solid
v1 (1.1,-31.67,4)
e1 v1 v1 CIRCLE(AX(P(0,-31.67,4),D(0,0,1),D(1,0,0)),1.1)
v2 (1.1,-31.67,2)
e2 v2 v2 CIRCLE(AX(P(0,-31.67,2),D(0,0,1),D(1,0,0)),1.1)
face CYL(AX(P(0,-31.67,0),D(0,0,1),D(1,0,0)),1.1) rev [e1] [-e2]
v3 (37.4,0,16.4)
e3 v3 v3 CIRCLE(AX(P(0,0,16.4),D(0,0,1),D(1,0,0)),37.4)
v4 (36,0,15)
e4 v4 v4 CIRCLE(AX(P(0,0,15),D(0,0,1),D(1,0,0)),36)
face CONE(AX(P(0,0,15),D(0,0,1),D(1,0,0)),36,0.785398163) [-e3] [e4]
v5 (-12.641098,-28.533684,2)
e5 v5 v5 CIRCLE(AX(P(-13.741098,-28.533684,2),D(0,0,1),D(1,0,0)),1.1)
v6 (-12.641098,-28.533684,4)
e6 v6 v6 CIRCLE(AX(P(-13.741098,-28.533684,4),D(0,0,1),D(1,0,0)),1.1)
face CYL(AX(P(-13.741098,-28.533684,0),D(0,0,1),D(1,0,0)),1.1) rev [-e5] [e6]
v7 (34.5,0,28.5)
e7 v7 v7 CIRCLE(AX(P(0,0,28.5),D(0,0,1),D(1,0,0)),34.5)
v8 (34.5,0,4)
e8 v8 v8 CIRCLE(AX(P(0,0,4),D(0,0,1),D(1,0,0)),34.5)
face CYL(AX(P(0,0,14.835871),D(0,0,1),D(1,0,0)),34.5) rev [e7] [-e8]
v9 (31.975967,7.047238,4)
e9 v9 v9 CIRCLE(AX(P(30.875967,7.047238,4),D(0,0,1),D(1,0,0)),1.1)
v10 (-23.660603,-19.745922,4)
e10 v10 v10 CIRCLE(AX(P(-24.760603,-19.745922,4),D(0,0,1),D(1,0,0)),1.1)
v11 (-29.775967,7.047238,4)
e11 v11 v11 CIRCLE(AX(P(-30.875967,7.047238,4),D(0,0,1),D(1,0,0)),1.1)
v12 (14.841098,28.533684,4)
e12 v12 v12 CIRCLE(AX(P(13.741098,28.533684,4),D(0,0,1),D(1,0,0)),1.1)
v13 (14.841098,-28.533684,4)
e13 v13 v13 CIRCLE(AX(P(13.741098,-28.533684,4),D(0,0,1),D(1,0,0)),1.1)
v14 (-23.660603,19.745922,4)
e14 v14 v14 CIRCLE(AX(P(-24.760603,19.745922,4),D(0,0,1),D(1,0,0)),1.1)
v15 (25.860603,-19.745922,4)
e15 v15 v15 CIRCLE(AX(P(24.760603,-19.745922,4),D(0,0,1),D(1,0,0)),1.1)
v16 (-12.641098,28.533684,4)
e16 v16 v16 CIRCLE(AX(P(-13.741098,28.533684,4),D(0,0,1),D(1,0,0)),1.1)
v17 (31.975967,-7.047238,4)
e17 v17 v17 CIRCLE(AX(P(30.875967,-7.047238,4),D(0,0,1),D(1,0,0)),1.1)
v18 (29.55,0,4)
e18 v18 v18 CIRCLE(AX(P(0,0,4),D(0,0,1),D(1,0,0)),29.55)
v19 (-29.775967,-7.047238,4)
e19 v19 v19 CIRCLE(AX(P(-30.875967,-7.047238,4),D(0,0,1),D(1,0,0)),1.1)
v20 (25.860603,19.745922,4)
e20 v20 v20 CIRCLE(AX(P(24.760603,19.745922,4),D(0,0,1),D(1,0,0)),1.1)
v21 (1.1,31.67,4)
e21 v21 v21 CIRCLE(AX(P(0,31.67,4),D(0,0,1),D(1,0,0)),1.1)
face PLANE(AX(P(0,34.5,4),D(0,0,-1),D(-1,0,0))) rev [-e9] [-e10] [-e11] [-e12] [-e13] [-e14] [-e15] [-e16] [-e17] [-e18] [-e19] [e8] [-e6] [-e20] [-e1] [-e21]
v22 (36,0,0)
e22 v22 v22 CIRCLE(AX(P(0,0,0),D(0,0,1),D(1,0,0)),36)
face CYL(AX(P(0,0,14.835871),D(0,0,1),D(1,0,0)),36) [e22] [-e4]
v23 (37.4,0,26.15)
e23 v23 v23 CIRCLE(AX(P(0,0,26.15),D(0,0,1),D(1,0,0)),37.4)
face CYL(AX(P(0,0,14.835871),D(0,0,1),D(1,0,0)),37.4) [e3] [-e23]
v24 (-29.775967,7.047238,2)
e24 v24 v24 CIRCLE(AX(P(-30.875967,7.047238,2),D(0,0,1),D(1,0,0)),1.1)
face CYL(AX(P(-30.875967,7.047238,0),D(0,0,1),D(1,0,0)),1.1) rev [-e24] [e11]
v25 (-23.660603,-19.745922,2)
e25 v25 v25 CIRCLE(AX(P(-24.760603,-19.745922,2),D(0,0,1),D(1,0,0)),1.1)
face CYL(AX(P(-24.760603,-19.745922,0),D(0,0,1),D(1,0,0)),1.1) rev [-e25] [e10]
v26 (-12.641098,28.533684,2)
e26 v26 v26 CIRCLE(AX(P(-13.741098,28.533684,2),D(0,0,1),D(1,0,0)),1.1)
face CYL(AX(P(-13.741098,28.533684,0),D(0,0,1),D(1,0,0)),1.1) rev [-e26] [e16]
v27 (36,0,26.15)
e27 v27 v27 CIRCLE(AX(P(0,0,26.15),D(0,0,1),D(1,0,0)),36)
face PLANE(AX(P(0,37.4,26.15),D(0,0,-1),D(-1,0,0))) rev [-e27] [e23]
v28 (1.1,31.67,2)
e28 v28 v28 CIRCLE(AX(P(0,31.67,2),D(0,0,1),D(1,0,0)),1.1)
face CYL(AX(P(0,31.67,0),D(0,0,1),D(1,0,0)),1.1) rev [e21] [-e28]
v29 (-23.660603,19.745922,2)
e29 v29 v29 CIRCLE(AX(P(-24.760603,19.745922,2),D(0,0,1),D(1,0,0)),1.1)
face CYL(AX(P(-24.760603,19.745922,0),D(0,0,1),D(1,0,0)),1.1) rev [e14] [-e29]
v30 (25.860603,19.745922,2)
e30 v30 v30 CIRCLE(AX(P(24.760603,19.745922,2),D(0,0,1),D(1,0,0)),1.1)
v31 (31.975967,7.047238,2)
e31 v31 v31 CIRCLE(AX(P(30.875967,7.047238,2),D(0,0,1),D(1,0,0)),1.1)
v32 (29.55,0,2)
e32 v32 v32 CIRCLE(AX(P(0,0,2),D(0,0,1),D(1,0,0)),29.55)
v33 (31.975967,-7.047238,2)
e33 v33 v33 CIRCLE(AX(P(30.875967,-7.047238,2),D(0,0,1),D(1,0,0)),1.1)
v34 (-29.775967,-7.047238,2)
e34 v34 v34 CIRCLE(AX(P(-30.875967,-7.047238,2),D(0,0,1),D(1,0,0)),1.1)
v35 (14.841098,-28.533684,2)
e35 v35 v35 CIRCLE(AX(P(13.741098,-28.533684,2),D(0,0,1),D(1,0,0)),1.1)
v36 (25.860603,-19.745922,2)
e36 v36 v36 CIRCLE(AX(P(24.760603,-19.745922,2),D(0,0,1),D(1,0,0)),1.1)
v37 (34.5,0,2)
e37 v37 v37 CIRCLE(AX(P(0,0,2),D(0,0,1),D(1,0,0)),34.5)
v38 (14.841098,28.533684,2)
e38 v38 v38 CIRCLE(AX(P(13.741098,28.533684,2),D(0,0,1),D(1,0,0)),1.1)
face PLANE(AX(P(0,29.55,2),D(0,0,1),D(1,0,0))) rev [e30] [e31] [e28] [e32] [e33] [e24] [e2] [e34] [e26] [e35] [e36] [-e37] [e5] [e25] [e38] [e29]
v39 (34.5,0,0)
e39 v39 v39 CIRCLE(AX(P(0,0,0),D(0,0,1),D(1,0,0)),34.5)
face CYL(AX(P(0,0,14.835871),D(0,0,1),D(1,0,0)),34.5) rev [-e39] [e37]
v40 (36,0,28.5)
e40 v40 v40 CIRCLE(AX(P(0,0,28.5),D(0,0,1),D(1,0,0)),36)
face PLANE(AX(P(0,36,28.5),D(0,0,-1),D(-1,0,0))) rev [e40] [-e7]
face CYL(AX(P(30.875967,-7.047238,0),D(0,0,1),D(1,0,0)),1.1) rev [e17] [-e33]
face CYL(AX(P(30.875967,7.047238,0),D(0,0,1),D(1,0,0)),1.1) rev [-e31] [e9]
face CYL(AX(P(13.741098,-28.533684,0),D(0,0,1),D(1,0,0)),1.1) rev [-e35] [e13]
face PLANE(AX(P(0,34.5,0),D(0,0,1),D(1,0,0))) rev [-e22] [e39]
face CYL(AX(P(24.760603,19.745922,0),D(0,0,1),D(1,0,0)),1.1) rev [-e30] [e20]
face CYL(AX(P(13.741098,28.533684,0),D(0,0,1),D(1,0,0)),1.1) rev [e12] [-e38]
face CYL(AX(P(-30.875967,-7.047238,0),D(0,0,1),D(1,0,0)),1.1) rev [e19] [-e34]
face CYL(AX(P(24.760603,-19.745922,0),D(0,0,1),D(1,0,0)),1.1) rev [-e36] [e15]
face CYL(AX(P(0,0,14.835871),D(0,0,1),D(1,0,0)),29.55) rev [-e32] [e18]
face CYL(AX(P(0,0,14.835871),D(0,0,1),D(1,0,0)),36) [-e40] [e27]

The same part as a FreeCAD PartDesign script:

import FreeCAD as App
import Part
import Sketcher
from FreeCAD import Vector
Q = App.Units.Quantity


def add_polygon(sketch, points):
    """Adds a closed chain of lines whose ends are joined by coincident constraints."""
    first, n = sketch.GeometryCount, len(points)
    for a, b in zip(points, points[1:] + points[:1]):
        sketch.addGeometry(Part.LineSegment(App.Vector(*a, 0), App.Vector(*b, 0)), False)
    for i in range(n):
        sketch.addConstraint(Sketcher.Constraint("Coincident", first + i, 2, first + (i + 1) % n, 1))

doc = App.newDocument("Part")
body = doc.addObject("PartDesign::Body", "Body")

# Sketch on YZ plane
sketch1 = body.newObject("Sketcher::SketchObject", "Sketch")
sketch1.AttachmentSupport = (doc.getObject("YZ_Plane"), [""])
sketch1.MapMode = "FlatFace"
add_polygon(sketch1, [(34.5, 0), (36, 0), (36, 15), (37.4, 16.4), (37.4, 26.15), (36, 26.15), (36, 28.5), (34.5, 28.5), (34.5, 4), (29.55, 4), (29.55, 2), (34.5, 2)])  # lines 0-11
sketch1.addConstraint([
    Sketcher.Constraint("Horizontal", 0),
    Sketcher.Constraint("Vertical", 1),
    Sketcher.Constraint("Vertical", 3),
    Sketcher.Constraint("Horizontal", 4),
    Sketcher.Constraint("Vertical", 5),
    Sketcher.Constraint("Horizontal", 6),
    Sketcher.Constraint("Vertical", 7),
    Sketcher.Constraint("Horizontal", 8),
    Sketcher.Constraint("Vertical", 9),
    Sketcher.Constraint("Horizontal", 10),
    Sketcher.Constraint("Vertical", 11),
    Sketcher.Constraint("PointOnObject", 0, 2, -1),
    Sketcher.Constraint("Vertical", 1, 2, 4, 2),
    Sketcher.Constraint("Vertical", 7, 2, 10, 2),
    Sketcher.Constraint("Equal", 9, 11),
    Sketcher.Constraint("DistanceY", 1, 1, 1, 2, 15.0),
    Sketcher.Constraint("DistanceY", 9, 2, 9, 1, 2.0),
    Sketcher.Constraint("Angle", 2, Q("45 deg")),
    Sketcher.Constraint("DistanceX", 0, 1, 0, 2, 1.5),
    Sketcher.Constraint("DistanceX", 4, 2, 4, 1, 1.4),
    Sketcher.Constraint("DistanceY", 7, 2, 7, 1, 24.5),
    Sketcher.Constraint("DistanceX", -1, 1, 0, 2, 36.0),
    Sketcher.Constraint("DistanceX", 8, 2, 8, 1, 4.95),
    Sketcher.Constraint("DistanceY", 3, 1, 3, 2, 9.75),
])
revolution = body.newObject("PartDesign::Revolution", "Revolution")
revolution.Profile = sketch1
revolution.ReferenceAxis = (sketch1, ["V_Axis"])
revolution.Angle = 360

# Sketch on XY plane
sketch2 = body.newObject("Sketcher::SketchObject", "Sketch001")
sketch2.AttachmentSupport = (doc.getObject("XY_Plane"), [""])
sketch2.MapMode = "FlatFace"
sketch2.AttachmentOffset = App.Placement(Vector(0, 0, 4), App.Rotation())
sketch2.addGeometry([
    Part.Circle(Vector(0, 31.67, 0), Vector(0, 0, 1), 1.1),  # 0
    Part.Circle(Vector(13.741098, 28.533684, 0), Vector(0, 0, 1), 1.1),  # 1
    Part.Circle(Vector(24.760603, 19.745922, 0), Vector(0, 0, 1), 1.1),  # 2
    Part.Circle(Vector(30.875967, 7.047238, 0), Vector(0, 0, 1), 1.1),  # 3
    Part.Circle(Vector(30.875967, -7.047238, 0), Vector(0, 0, 1), 1.1),  # 4
    Part.Circle(Vector(24.760603, -19.745922, 0), Vector(0, 0, 1), 1.1),  # 5
    Part.Circle(Vector(13.741098, -28.533684, 0), Vector(0, 0, 1), 1.1),  # 6
    Part.Circle(Vector(0, -31.67, 0), Vector(0, 0, 1), 1.1),  # 7
    Part.Circle(Vector(-13.741098, -28.533684, 0), Vector(0, 0, 1), 1.1),  # 8
    Part.Circle(Vector(-24.760603, -19.745922, 0), Vector(0, 0, 1), 1.1),  # 9
    Part.Circle(Vector(-30.875967, -7.047238, 0), Vector(0, 0, 1), 1.1),  # 10
    Part.Circle(Vector(-30.875967, 7.047238, 0), Vector(0, 0, 1), 1.1),  # 11
    Part.Circle(Vector(-24.760603, 19.745922, 0), Vector(0, 0, 1), 1.1),  # 12
    Part.Circle(Vector(-13.741098, 28.533684, 0), Vector(0, 0, 1), 1.1),  # 13
], False)
sketch2.addConstraint([
    Sketcher.Constraint("Equal", 0, 1),
    Sketcher.Constraint("Equal", 1, 2),
    Sketcher.Constraint("Equal", 2, 3),
    Sketcher.Constraint("Equal", 3, 4),
    Sketcher.Constraint("Equal", 4, 5),
    Sketcher.Constraint("Equal", 5, 6),
    Sketcher.Constraint("Equal", 6, 7),
    Sketcher.Constraint("Equal", 7, 8),
    Sketcher.Constraint("Equal", 8, 9),
    Sketcher.Constraint("Equal", 9, 10),
    Sketcher.Constraint("Equal", 10, 11),
    Sketcher.Constraint("Equal", 11, 12),
    Sketcher.Constraint("Equal", 12, 13),
    Sketcher.Constraint("Symmetric", 0, 3, 7, 3, -1, 1),
    Sketcher.Constraint("Symmetric", 1, 3, 8, 3, -1, 1),
    Sketcher.Constraint("Symmetric", 2, 3, 9, 3, -1, 1),
    Sketcher.Constraint("Symmetric", 3, 3, 10, 3, -1, 1),
    Sketcher.Constraint("Symmetric", 4, 3, 11, 3, -1, 1),
    Sketcher.Constraint("Symmetric", 5, 3, 12, 3, -1, 1),
    Sketcher.Constraint("Symmetric", 6, 3, 13, 3, -1, 1),
    Sketcher.Constraint("Symmetric", 6, 3, 8, 3, -2),
    Sketcher.Constraint("Symmetric", 5, 3, 9, 3, -2),
    Sketcher.Constraint("Symmetric", 4, 3, 10, 3, -2),
    Sketcher.Constraint("PointOnObject", 0, 3, -2),
    Sketcher.Constraint("Diameter", 0, 2.2),
    Sketcher.Constraint("DistanceY", -1, 1, 0, 3, 31.67),
    Sketcher.Constraint("DistanceX", -1, 1, 1, 3, 13.741098),
    Sketcher.Constraint("DistanceX", 8, 3, 5, 3, 38.501701),
    Sketcher.Constraint("DistanceX", 1, 3, 3, 3, 17.134869),
    Sketcher.Constraint("DistanceY", 4, 3, 2, 3, 26.79316),
    Sketcher.Constraint("DistanceY", 6, 3, 1, 3, 57.067368),
    Sketcher.Constraint("DistanceY", -1, 1, 2, 3, 19.745922),
])
pocket1 = body.newObject("PartDesign::Pocket", "Pocket")
pocket1.Profile = sketch2
pocket1.Type = "ThroughAll"

doc.recompute()
